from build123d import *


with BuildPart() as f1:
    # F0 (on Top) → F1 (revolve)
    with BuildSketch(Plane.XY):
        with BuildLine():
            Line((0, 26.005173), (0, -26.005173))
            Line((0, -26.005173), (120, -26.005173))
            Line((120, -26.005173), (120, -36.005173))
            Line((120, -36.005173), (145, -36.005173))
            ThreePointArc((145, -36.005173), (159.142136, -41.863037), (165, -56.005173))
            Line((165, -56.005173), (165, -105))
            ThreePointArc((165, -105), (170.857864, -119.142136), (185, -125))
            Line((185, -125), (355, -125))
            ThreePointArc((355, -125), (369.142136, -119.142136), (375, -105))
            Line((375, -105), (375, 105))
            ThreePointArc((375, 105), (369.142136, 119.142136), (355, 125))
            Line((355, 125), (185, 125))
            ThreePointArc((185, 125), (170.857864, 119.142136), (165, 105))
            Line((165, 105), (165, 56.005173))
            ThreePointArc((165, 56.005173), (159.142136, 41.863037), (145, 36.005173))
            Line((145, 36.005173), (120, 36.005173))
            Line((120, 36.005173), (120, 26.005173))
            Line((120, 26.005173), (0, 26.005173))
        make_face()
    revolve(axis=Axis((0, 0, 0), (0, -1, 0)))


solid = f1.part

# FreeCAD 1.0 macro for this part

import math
import FreeCAD as App
import Part
import Sketcher
from FreeCAD import Vector

doc = App.newDocument("Part")
params = doc.addObject("Spreadsheet::Sheet", "Params")
for row, (alias, value) in enumerate([
    ("sketch1_radius", "19.999999 mm"),
    ("sketch1_width", "120 mm"),
    ("sketch1_width2", "25 mm"),
    ("sketch1_width3", "170 mm"),
    ("sketch1_height", "10 mm"),
    ("revolution_angle", "360 deg"),
], start=1):
    params.set(f"A{row}", alias)
    params.set(f"B{row}", "=" + value)
    params.setAlias(f"B{row}", alias)

body = doc.addObject("PartDesign::Body", "Body")

sketch1 = body.newObject("Sketcher::SketchObject", "Sketch")
sketch1.AttachmentSupport = (doc.getObject("XY_Plane"), [""])
sketch1.MapMode = "FlatFace"
sketch1.addGeometry([
    Part.LineSegment(Vector(0, 26, 0), Vector(0, -26, 0)),
    Part.LineSegment(Vector(0, -26, 0), Vector(120, -26, 0)),
    Part.LineSegment(Vector(120, -26, 0), Vector(120, -36, 0)),
    Part.LineSegment(Vector(120, -36, 0), Vector(145, -36, 0)),
    Part.ArcOfCircle(Part.Circle(Vector(145, -56, 0), Vector(0, 0, 1), 20), math.radians(0), math.radians(90)),
    Part.LineSegment(Vector(165, -56, 0), Vector(165, -105, 0)),
    Part.ArcOfCircle(Part.Circle(Vector(185, -105, 0), Vector(0, 0, 1), 20), math.radians(180), math.radians(270)),
    Part.LineSegment(Vector(185, -125, 0), Vector(355, -125, 0)),
    Part.ArcOfCircle(Part.Circle(Vector(355, -105, 0), Vector(0, 0, 1), 20), math.radians(-90), math.radians(0)),
    Part.LineSegment(Vector(375, -105, 0), Vector(375, 105, 0)),
    Part.ArcOfCircle(Part.Circle(Vector(355, 105, 0), Vector(0, 0, 1), 20), math.radians(0), math.radians(90)),
    Part.LineSegment(Vector(355, 125, 0), Vector(185, 125, 0)),
    Part.ArcOfCircle(Part.Circle(Vector(185, 105, 0), Vector(0, 0, 1), 20), math.radians(90), math.radians(180)),
    Part.LineSegment(Vector(165, 105, 0), Vector(165, 56, 0)),
    Part.ArcOfCircle(Part.Circle(Vector(145, 56, 0), Vector(0, 0, 1), 20), math.radians(-90), math.radians(0)),
    Part.LineSegment(Vector(145, 36, 0), Vector(120, 36, 0)),
    Part.LineSegment(Vector(120, 36, 0), Vector(120, 26, 0)),
    Part.LineSegment(Vector(120, 26, 0), Vector(0, 26, 0)),
], False)
sketch1.addConstraint([
    Sketcher.Constraint("Coincident", 0, 2, 1, 1),
    Sketcher.Constraint("Coincident", 1, 2, 2, 1),
    Sketcher.Constraint("Coincident", 2, 2, 3, 1),
    Sketcher.Constraint("Tangent", 3, 2, 4, 2),
    Sketcher.Constraint("Tangent", 4, 1, 5, 1),
    Sketcher.Constraint("Tangent", 5, 2, 6, 1),
    Sketcher.Constraint("Tangent", 6, 2, 7, 1),
    Sketcher.Constraint("Tangent", 7, 2, 8, 1),
    Sketcher.Constraint("Tangent", 8, 2, 9, 1),
    Sketcher.Constraint("Tangent", 9, 2, 10, 1),
    Sketcher.Constraint("Tangent", 10, 2, 11, 1),
    Sketcher.Constraint("Tangent", 11, 2, 12, 1),
    Sketcher.Constraint("Tangent", 12, 2, 13, 1),
    Sketcher.Constraint("Tangent", 13, 2, 14, 2),
    Sketcher.Constraint("Tangent", 14, 1, 15, 1),
    Sketcher.Constraint("Coincident", 15, 2, 16, 1),
    Sketcher.Constraint("Coincident", 16, 2, 17, 1),
    Sketcher.Constraint("Coincident", 17, 2, 0, 1),
    Sketcher.Constraint("Vertical", 0),
    Sketcher.Constraint("Horizontal", 1),
    Sketcher.Constraint("Vertical", 2),
    Sketcher.Constraint("Horizontal", 3),
    Sketcher.Constraint("Vertical", 5),
    Sketcher.Constraint("Horizontal", 7),
    Sketcher.Constraint("Vertical", 9),
    Sketcher.Constraint("Horizontal", 11),
    Sketcher.Constraint("Vertical", 13),
    Sketcher.Constraint("Horizontal", 15),
    Sketcher.Constraint("Vertical", 16),
    Sketcher.Constraint("Horizontal", 17),
    Sketcher.Constraint("Equal", 4, 6),
    Sketcher.Constraint("Equal", 6, 8),
    Sketcher.Constraint("Equal", 8, 10),
    Sketcher.Constraint("Equal", 10, 12),
    Sketcher.Constraint("Equal", 12, 14),
    Sketcher.Constraint("Symmetric", 0, 2, 17, 2, -1, 1),
    Sketcher.Constraint("Symmetric", 6, 3, 12, 3, -1),
    Sketcher.Constraint("Symmetric", 2, 2, 15, 2, -1),
    Sketcher.Constraint("Radius", 4, 19.999999),
    Sketcher.Constraint("DistanceX", 1, 1, 1, 2, 120.0),
    Sketcher.Constraint("DistanceX", 3, 1, 3, 2, 25.0),
    Sketcher.Constraint("DistanceX", 7, 1, 7, 2, 170.0),
    Sketcher.Constraint("DistanceY", 2, 2, 2, 1, 10.0),
    Sketcher.Constraint("DistanceY", 9, 1, 9, 2, 210.0),
    Sketcher.Constraint("DistanceY", 0, 2, 0, 1, 52.010346),
])
sketch1.setExpression("Constraints[38]", "Params.sketch1_radius")
sketch1.setExpression("Constraints[39]", "Params.sketch1_width")
sketch1.setExpression("Constraints[40]", "Params.sketch1_width2")
sketch1.setExpression("Constraints[41]", "Params.sketch1_width3")
sketch1.setExpression("Constraints[42]", "Params.sketch1_height")
revolution = body.newObject("PartDesign::Revolution", "Revolution")
revolution.Profile = sketch1
revolution.ReferenceAxis = (sketch1, ["V_Axis"])
revolution.setExpression("Angle", "Params.revolution_angle")

doc.recompute()
